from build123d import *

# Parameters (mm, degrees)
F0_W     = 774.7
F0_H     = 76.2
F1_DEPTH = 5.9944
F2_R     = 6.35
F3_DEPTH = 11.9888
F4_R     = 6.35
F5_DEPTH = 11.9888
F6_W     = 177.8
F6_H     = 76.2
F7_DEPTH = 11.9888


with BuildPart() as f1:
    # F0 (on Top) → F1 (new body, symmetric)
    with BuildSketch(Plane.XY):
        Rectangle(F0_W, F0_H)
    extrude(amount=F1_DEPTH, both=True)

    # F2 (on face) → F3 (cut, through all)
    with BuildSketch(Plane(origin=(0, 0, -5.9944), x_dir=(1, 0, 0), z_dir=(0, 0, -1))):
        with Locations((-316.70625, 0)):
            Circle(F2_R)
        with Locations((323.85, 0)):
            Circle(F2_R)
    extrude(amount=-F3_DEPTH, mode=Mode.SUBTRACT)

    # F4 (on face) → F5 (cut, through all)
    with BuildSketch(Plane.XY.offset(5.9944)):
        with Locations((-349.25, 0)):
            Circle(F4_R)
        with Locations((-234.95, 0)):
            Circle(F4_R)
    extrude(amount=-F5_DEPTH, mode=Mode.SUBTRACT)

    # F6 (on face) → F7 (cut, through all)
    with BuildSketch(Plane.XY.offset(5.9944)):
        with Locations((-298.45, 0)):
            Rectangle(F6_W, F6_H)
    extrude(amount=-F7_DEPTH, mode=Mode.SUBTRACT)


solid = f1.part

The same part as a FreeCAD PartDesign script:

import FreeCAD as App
import Part
import Sketcher
Q = App.Units.Quantity

doc = App.newDocument("Part")
params = doc.addObject("Spreadsheet::Sheet", "Params")
for row, (alias, value) in enumerate([
    ("sketch1_height", "3 in"),
    ("sketch1_width", "30.5 in"),
    ("pad1_length", "0.472 in"),
    ("sketch2_diameter", "0.5 in"),
    ("sketch3_diameter", "0.5 in"),
    ("sketch4_width", "7 in"),
    ("sketch4_height", "3 in"),
], start=1):
    params.set(f"A{row}", alias)
    params.set(f"B{row}", "=" + value)
    params.setAlias(f"B{row}", alias)

body = doc.addObject("PartDesign::Body", "Body")

# Sketch on XY plane
sketch1 = body.newObject("Sketcher::SketchObject", "Sketch")
sketch1.AttachmentSupport = (doc.getObject("XY_Plane"), [""])
sketch1.MapMode = "FlatFace"
sketch1.addGeometry(Part.LineSegment(App.Vector(-387, 38, 0), App.Vector(-387, -38, 0)), False)
sketch1.addGeometry(Part.LineSegment(App.Vector(-387, -38, 0), App.Vector(387, -38, 0)), False)
sketch1.addGeometry(Part.LineSegment(App.Vector(387, -38, 0), App.Vector(387, 38, 0)), False)
sketch1.addGeometry(Part.LineSegment(App.Vector(387, 38, 0), App.Vector(-387, 38, 0)), False)
sketch1.addConstraint(Sketcher.Constraint("Coincident", 0, 2, 1, 1))
sketch1.addConstraint(Sketcher.Constraint("Coincident", 1, 2, 2, 1))
sketch1.addConstraint(Sketcher.Constraint("Coincident", 2, 2, 3, 1))
sketch1.addConstraint(Sketcher.Constraint("Coincident", 3, 2, 0, 1))
sketch1.addConstraint(Sketcher.Constraint("Vertical", 0))
sketch1.addConstraint(Sketcher.Constraint("Horizontal", 1))
sketch1.addConstraint(Sketcher.Constraint("Vertical", 2))
sketch1.addConstraint(Sketcher.Constraint("Horizontal", 3))
sketch1.addConstraint(Sketcher.Constraint("Symmetric", 0, 2, 2, 2, -1, 1))
sketch1.addConstraint(Sketcher.Constraint("DistanceY", 0, 2, 0, 1, Q("3 in")))
sketch1.addConstraint(Sketcher.Constraint("DistanceX", 1, 1, 1, 2, Q("30.5 in")))
sketch1.setExpression("Constraints[9]", "Params.sketch1_height")
sketch1.setExpression("Constraints[10]", "Params.sketch1_width")
pad1 = body.newObject("PartDesign::Pad", "Pad")
pad1.Profile = sketch1
pad1.setExpression("Length", "Params.pad1_length")
pad1.Midplane = True

# Sketch on XY plane
sketch2 = body.newObject("Sketcher::SketchObject", "Sketch001")
sketch2.AttachmentSupport = (doc.getObject("XY_Plane"), [""])
sketch2.MapMode = "FlatFace"
sketch2.AttachmentOffset = App.Placement(App.Vector(0, 0, -0.236 * 25.4), App.Rotation())
sketch2.addGeometry(Part.Circle(App.Vector(-317, 0, 0), App.Vector(0, 0, 1), 6), False)
sketch2.addGeometry(Part.Circle(App.Vector(324, 0, 0), App.Vector(0, 0, 1), 6), False)
sketch2.addConstraint(Sketcher.Constraint("Equal", 0, 1))
sketch2.addConstraint(Sketcher.Constraint("PointOnObject", 0, 3, -1))
sketch2.addConstraint(Sketcher.Constraint("PointOnObject", 1, 3, -1))
sketch2.addConstraint(Sketcher.Constraint("Diameter", 0, Q("0.5 in")))
sketch2.addConstraint(Sketcher.Constraint("DistanceX", -1, 1, 1, 3, Q("12.75 in")))
sketch2.addConstraint(Sketcher.Constraint("DistanceX", 0, 3, -1, 1, Q("12.46875 in")))
sketch2.setExpression("Constraints[3]", "Params.sketch2_diameter")
pocket1 = body.newObject("PartDesign::Pocket", "Pocket")
pocket1.Profile = sketch2
pocket1.Type = "ThroughAll"
pocket1.Reversed = True

# Sketch on XY plane
sketch3 = body.newObject("Sketcher::SketchObject", "Sketch002")
sketch3.AttachmentSupport = (doc.getObject("XY_Plane"), [""])
sketch3.MapMode = "FlatFace"
sketch3.AttachmentOffset = App.Placement(App.Vector(0, 0, 0.236 * 25.4), App.Rotation())
sketch3.addGeometry(Part.Circle(App.Vector(-349, 0, 0), App.Vector(0, 0, 1), 6), False)
sketch3.addGeometry(Part.Circle(App.Vector(-235, 0, 0), App.Vector(0, 0, 1), 6), False)
sketch3.addConstraint(Sketcher.Constraint("Equal", 0, 1))
sketch3.addConstraint(Sketcher.Constraint("PointOnObject", 0, 3, -1))
sketch3.addConstraint(Sketcher.Constraint("PointOnObject", 1, 3, -1))
sketch3.addConstraint(Sketcher.Constraint("Diameter", 0, Q("0.5 in")))
sketch3.addConstraint(Sketcher.Constraint("DistanceX", 0, 3, 1, 3, Q("4.5 in")))
sketch3.addConstraint(Sketcher.Constraint("DistanceX", 0, 3, -1, 1, Q("13.75 in")))
sketch3.setExpression("Constraints[3]", "Params.sketch3_diameter")
pocket2 = body.newObject("PartDesign::Pocket", "Pocket001")
pocket2.Profile = sketch3
pocket2.Type = "ThroughAll"

# Sketch on XY plane
sketch4 = body.newObject("Sketcher::SketchObject", "Sketch003")
sketch4.AttachmentSupport = (doc.getObject("XY_Plane"), [""])
sketch4.MapMode = "FlatFace"
sketch4.AttachmentOffset = App.Placement(App.Vector(0, 0, 0.236 * 25.4), App.Rotation())
sketch4.addGeometry(Part.LineSegment(App.Vector(-387, 38, 0), App.Vector(-387, -38, 0)), False)
sketch4.addGeometry(Part.LineSegment(App.Vector(-387, -38, 0), App.Vector(-210, -38, 0)), False)
sketch4.addGeometry(Part.LineSegment(App.Vector(-210, -38, 0), App.Vector(-210, 38, 0)), False)
sketch4.addGeometry(Part.LineSegment(App.Vector(-210, 38, 0), App.Vector(-387, 38, 0)), False)
sketch4.addConstraint(Sketcher.Constraint("Coincident", 0, 2, 1, 1))
sketch4.addConstraint(Sketcher.Constraint("Coincident", 1, 2, 2, 1))
sketch4.addConstraint(Sketcher.Constraint("Coincident", 2, 2, 3, 1))
sketch4.addConstraint(Sketcher.Constraint("Coincident", 3, 2, 0, 1))
sketch4.addConstraint(Sketcher.Constraint("Vertical", 0))
sketch4.addConstraint(Sketcher.Constraint("Horizontal", 1))
sketch4.addConstraint(Sketcher.Constraint("Vertical", 2))
sketch4.addConstraint(Sketcher.Constraint("Horizontal", 3))
sketch4.addConstraint(Sketcher.Constraint("DistanceX", 1, 1, 1, 2, Q("7 in")))
sketch4.addConstraint(Sketcher.Constraint("DistanceY", 0, 2, 0, 1, Q("3 in")))
sketch4.addConstraint(Sketcher.Constraint("DistanceY", 0, 2, -1, 1, Q("1.5 in")))
sketch4.addConstraint(Sketcher.Constraint("DistanceX", 0, 2, -1, 1, Q("15.25 in")))
sketch4.setExpression("Constraints[8]", "Params.sketch4_width")
sketch4.setExpression("Constraints[9]", "Params.sketch4_height")
pocket3 = body.newObject("PartDesign::Pocket", "Pocket002")
pocket3.Profile = sketch4
pocket3.Type = "ThroughAll"

doc.recompute()
